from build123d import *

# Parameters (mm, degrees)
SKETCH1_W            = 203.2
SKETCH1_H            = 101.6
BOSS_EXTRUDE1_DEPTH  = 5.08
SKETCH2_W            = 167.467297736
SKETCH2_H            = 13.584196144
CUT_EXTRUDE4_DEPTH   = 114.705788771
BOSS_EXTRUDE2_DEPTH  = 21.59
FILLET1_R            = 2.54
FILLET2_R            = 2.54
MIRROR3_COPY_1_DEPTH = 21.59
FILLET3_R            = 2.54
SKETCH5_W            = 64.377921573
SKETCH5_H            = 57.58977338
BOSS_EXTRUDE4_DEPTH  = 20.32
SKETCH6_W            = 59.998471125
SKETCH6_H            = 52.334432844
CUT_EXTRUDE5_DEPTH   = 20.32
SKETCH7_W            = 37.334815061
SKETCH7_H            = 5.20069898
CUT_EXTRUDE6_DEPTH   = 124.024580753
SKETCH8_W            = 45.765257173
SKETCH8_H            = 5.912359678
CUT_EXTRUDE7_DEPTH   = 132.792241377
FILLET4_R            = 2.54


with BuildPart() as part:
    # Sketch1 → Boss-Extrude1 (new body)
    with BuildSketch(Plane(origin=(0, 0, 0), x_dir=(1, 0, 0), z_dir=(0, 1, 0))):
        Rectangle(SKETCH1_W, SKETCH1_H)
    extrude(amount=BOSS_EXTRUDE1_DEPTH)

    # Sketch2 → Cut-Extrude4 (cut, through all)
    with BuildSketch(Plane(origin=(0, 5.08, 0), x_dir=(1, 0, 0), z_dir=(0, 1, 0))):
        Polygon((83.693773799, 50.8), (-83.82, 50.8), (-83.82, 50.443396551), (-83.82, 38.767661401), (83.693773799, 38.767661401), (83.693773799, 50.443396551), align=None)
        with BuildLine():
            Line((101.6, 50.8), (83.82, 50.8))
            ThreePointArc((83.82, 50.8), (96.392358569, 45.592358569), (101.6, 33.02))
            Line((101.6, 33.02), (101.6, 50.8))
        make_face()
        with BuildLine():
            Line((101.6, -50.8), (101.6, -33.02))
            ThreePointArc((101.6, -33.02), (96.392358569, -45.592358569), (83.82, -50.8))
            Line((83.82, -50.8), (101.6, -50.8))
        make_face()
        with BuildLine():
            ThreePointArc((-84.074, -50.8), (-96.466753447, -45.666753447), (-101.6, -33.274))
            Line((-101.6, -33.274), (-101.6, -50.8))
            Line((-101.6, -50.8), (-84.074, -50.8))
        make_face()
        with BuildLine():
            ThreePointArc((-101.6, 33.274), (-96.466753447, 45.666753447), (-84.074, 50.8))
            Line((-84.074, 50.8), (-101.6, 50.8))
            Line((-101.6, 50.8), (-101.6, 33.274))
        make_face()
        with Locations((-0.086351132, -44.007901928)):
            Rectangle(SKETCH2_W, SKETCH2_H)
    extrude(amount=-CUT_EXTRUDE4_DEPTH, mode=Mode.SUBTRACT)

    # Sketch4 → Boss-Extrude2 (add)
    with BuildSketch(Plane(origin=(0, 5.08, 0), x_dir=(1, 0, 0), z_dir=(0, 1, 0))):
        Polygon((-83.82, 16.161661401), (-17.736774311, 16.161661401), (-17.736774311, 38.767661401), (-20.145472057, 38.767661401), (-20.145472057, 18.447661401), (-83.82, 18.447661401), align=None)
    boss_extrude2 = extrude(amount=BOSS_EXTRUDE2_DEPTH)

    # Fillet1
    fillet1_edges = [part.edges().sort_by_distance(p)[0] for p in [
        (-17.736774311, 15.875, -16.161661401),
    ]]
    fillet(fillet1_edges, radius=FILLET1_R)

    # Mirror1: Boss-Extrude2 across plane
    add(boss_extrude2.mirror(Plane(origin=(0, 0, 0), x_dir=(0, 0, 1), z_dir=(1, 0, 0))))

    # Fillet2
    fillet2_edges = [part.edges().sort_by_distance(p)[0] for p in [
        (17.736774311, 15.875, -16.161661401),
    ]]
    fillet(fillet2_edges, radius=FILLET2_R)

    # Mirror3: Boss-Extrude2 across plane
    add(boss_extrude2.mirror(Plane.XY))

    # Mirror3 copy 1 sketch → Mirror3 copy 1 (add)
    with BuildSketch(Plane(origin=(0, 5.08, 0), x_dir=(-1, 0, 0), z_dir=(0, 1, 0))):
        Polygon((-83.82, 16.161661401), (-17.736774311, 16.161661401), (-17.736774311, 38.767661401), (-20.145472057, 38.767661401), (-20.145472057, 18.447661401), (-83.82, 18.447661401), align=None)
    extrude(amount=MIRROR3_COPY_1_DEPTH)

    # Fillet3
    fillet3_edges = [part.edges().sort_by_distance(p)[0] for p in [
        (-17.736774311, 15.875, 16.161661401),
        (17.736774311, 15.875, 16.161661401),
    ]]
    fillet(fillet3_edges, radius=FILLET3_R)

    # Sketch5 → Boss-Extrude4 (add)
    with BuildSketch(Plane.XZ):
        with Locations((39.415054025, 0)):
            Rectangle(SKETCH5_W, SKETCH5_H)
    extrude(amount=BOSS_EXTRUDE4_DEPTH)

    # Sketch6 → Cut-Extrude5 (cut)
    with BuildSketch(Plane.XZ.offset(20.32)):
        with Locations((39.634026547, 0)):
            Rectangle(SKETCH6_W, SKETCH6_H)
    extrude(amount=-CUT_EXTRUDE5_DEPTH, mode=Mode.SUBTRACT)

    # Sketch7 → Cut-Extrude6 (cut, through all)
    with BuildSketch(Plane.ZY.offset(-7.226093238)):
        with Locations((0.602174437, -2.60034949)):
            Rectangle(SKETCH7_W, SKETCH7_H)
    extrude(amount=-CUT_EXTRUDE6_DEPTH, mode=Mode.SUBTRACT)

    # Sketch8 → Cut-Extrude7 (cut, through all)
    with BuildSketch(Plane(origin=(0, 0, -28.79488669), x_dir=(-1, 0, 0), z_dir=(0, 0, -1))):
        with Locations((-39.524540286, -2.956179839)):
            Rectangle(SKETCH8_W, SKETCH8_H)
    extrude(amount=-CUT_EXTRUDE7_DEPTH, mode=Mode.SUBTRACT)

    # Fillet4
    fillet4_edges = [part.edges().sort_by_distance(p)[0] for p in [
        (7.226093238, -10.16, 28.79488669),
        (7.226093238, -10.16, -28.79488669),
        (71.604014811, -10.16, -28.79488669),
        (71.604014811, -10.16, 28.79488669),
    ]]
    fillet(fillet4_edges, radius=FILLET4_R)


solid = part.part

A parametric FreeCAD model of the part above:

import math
import FreeCAD as App
import Part
import Sketcher
Q = App.Units.Quantity


def edges_at(feature, points):
    """Names of the edges that pass closest to the given points."""
    edges = feature.Shape.Edges
    near = lambda p: min(range(len(edges)), key=lambda i: edges[i].distToShape(Part.Vertex(*p))[0])
    return sorted({f"Edge{near(p) + 1}" for p in points})

doc = App.newDocument("Part")
body = doc.addObject("PartDesign::Body", "Body")

sketch1 = body.newObject("Sketcher::SketchObject", "Sketch")
sketch1.AttachmentSupport = (doc.getObject("XZ_Plane"), [""])
sketch1.MapMode = "FlatFace"
sketch1.addGeometry(Part.LineSegment(App.Vector(-102, -51, 0), App.Vector(-102, 51, 0)), False)
sketch1.addGeometry(Part.LineSegment(App.Vector(-102, 51, 0), App.Vector(102, 51, 0)), False)
sketch1.addGeometry(Part.LineSegment(App.Vector(102, 51, 0), App.Vector(102, -51, 0)), False)
sketch1.addGeometry(Part.LineSegment(App.Vector(102, -51, 0), App.Vector(-102, -51, 0)), False)
sketch1.addConstraint(Sketcher.Constraint("Coincident", 0, 2, 1, 1))
sketch1.addConstraint(Sketcher.Constraint("Coincident", 1, 2, 2, 1))
sketch1.addConstraint(Sketcher.Constraint("Coincident", 2, 2, 3, 1))
sketch1.addConstraint(Sketcher.Constraint("Coincident", 3, 2, 0, 1))
sketch1.addConstraint(Sketcher.Constraint("Vertical", 0))
sketch1.addConstraint(Sketcher.Constraint("Horizontal", 1))
sketch1.addConstraint(Sketcher.Constraint("Vertical", 2))
sketch1.addConstraint(Sketcher.Constraint("Horizontal", 3))
sketch1.addConstraint(Sketcher.Constraint("Symmetric", 0, 2, 2, 2, -1, 1))
sketch1.addConstraint(Sketcher.Constraint("DistanceX", 1, 1, 1, 2, Q("8 in")))
sketch1.addConstraint(Sketcher.Constraint("DistanceY", 0, 1, 0, 2, Q("4 in")))
pad1 = body.newObject("PartDesign::Pad", "Pad")
pad1.Profile = sketch1
pad1.Length = Q("0.2 in")
pad1.Reversed = True

sketch2 = body.newObject("Sketcher::SketchObject", "Sketch001")
sketch2.AttachmentSupport = (doc.getObject("XZ_Plane"), [""])
sketch2.MapMode = "FlatFace"
sketch2.AttachmentOffset = App.Placement(App.Vector(0, 0, -0.2 * 25.4), App.Rotation())
sketch2.addGeometry(Part.LineSegment(App.Vector(84, -51, 0), App.Vector(-84, -51, 0)), False)
sketch2.addGeometry(Part.LineSegment(App.Vector(-84, -51, 0), App.Vector(-84, -39, 0)), False)
sketch2.addGeometry(Part.LineSegment(App.Vector(-84, -39, 0), App.Vector(84, -39, 0)), False)
sketch2.addGeometry(Part.LineSegment(App.Vector(84, -39, 0), App.Vector(84, -51, 0)), False)
sketch2.addGeometry(Part.LineSegment(App.Vector(102, -51, 0), App.Vector(84, -51, 0)), False)
sketch2.addGeometry(Part.ArcOfCircle(Part.Circle(App.Vector(84, -33, 0), App.Vector(0, 0, 1), 18), math.radians(-90), math.radians(0)), False)
sketch2.addGeometry(Part.LineSegment(App.Vector(102, -33, 0), App.Vector(102, -51, 0)), False)
sketch2.addGeometry(Part.LineSegment(App.Vector(102, 51, 0), App.Vector(102, 33, 0)), False)
sketch2.addGeometry(Part.ArcOfCircle(Part.Circle(App.Vector(84, 33, 0), App.Vector(0, 0, 1), 18), math.radians(0), math.radians(90)), False)
sketch2.addGeometry(Part.LineSegment(App.Vector(84, 51, 0), App.Vector(102, 51, 0)), False)
sketch2.addGeometry(Part.ArcOfCircle(Part.Circle(App.Vector(-84, 33, 0), App.Vector(0, 0, 1), 18), math.radians(90), math.radians(180)), False)
sketch2.addGeometry(Part.LineSegment(App.Vector(-102, 33, 0), App.Vector(-102, 51, 0)), False)
sketch2.addGeometry(Part.LineSegment(App.Vector(-102, 51, 0), App.Vector(-84, 51, 0)), False)
sketch2.addGeometry(Part.ArcOfCircle(Part.Circle(App.Vector(-84, -33, 0), App.Vector(0, 0, 1), 18), math.radians(180), math.radians(270)), False)
sketch2.addGeometry(Part.LineSegment(App.Vector(-84, -51, 0), App.Vector(-102, -51, 0)), False)
sketch2.addGeometry(Part.LineSegment(App.Vector(-102, -51, 0), App.Vector(-102, -33, 0)), False)
sketch2.addGeometry(Part.LineSegment(App.Vector(-84, 37, 0), App.Vector(-84, 51, 0)), False)
sketch2.addGeometry(Part.LineSegment(App.Vector(-84, 51, 0), App.Vector(84, 51, 0)), False)
sketch2.addGeometry(Part.LineSegment(App.Vector(84, 51, 0), App.Vector(84, 37, 0)), False)
sketch2.addGeometry(Part.LineSegment(App.Vector(84, 37, 0), App.Vector(-84, 37, 0)), False)
sketch2.addConstraint(Sketcher.Constraint("Coincident", 0, 2, 1, 1))
sketch2.addConstraint(Sketcher.Constraint("Coincident", 1, 2, 2, 1))
sketch2.addConstraint(Sketcher.Constraint("Coincident", 2, 2, 3, 1))
sketch2.addConstraint(Sketcher.Constraint("Coincident", 3, 2, 0, 1))
sketch2.addConstraint(Sketcher.Constraint("Tangent", 4, 2, 5, 1))
sketch2.addConstraint(Sketcher.Constraint("Tangent", 5, 2, 6, 1))
sketch2.addConstraint(Sketcher.Constraint("Coincident", 6, 2, 4, 1))
sketch2.addConstraint(Sketcher.Constraint("Tangent", 7, 2, 8, 1))
sketch2.addConstraint(Sketcher.Constraint("Tangent", 8, 2, 9, 1))
sketch2.addConstraint(Sketcher.Constraint("Coincident", 9, 2, 7, 1))
sketch2.addConstraint(Sketcher.Constraint("Tangent", 10, 2, 11, 1))
sketch2.addConstraint(Sketcher.Constraint("Coincident", 11, 2, 12, 1))
sketch2.addConstraint(Sketcher.Constraint("Tangent", 12, 2, 10, 1))
sketch2.addConstraint(Sketcher.Constraint("Tangent", 13, 2, 14, 1))
sketch2.addConstraint(Sketcher.Constraint("Coincident", 14, 2, 15, 1))
sketch2.addConstraint(Sketcher.Constraint("Tangent", 15, 2, 13, 1))
sketch2.addConstraint(Sketcher.Constraint("Coincident", 16, 2, 17, 1))
sketch2.addConstraint(Sketcher.Constraint("Coincident", 17, 2, 18, 1))
sketch2.addConstraint(Sketcher.Constraint("Coincident", 18, 2, 19, 1))
sketch2.addConstraint(Sketcher.Constraint("Coincident", 19, 2, 16, 1))
sketch2.addConstraint(Sketcher.Constraint("Horizontal", 0))
sketch2.addConstraint(Sketcher.Constraint("Vertical", 1))
sketch2.addConstraint(Sketcher.Constraint("Horizontal", 2))
sketch2.addConstraint(Sketcher.Constraint("Vertical", 3))
sketch2.addConstraint(Sketcher.Constraint("Horizontal", 4))
sketch2.addConstraint(Sketcher.Constraint("Vertical", 6))
sketch2.addConstraint(Sketcher.Constraint("Vertical", 7))
sketch2.addConstraint(Sketcher.Constraint("Horizontal", 9))
sketch2.addConstraint(Sketcher.Constraint("Vertical", 11))
sketch2.addConstraint(Sketcher.Constraint("Horizontal", 12))
sketch2.addConstraint(Sketcher.Constraint("Horizontal", 14))
sketch2.addConstraint(Sketcher.Constraint("Vertical", 15))
sketch2.addConstraint(Sketcher.Constraint("Vertical", 16))
sketch2.addConstraint(Sketcher.Constraint("Horizontal", 17))
sketch2.addConstraint(Sketcher.Constraint("Vertical", 18))
sketch2.addConstraint(Sketcher.Constraint("Horizontal", 19))
sketch2.addConstraint(Sketcher.Constraint("Equal", 5, 8))
sketch2.addConstraint(Sketcher.Constraint("Equal", 10, 13))
sketch2.addConstraint(Sketcher.Constraint("Symmetric", 0, 2, 8, 2, -1, 1))
sketch2.addConstraint(Sketcher.Constraint("Symmetric", 6, 2, 11, 2, -1, 1))
sketch2.addConstraint(Sketcher.Constraint("Symmetric", 9, 2, 14, 2, -1, 1))
sketch2.addConstraint(Sketcher.Constraint("Symmetric", 4, 2, 16, 2, -1, 1))
sketch2.addConstraint(Sketcher.Constraint("Symmetric", 0, 2, 4, 2, -2))
sketch2.addConstraint(Sketcher.Constraint("Radius", 5, Q("0.7 in")))
sketch2.addConstraint(Sketcher.Constraint("Radius", 10, Q("0.69 in")))
sketch2.addConstraint(Sketcher.Constraint("DistanceY", 0, 2, -1, 1, Q("2 in")))
sketch2.addConstraint(Sketcher.Constraint("DistanceX", -1, 1, 5, 2, Q("4 in")))
sketch2.addConstraint(Sketcher.Constraint("DistanceY", 1, 1, 1, 2, 12.032339))
sketch2.addConstraint(Sketcher.Constraint("DistanceX", 0, 2, 0, 1, 167.513774))
sketch2.addConstraint(Sketcher.Constraint("DistanceX", 17, 1, 17, 2, 167.467298))
sketch2.addConstraint(Sketcher.Constraint("DistanceY", 16, 1, 16, 2, 13.584196))
pocket1 = body.newObject("PartDesign::Pocket", "Pocket")
pocket1.Profile = sketch2
pocket1.Type = "ThroughAll"
pocket1.Reversed = True

sketch3 = body.newObject("Sketcher::SketchObject", "Sketch002")
sketch3.AttachmentSupport = (doc.getObject("XZ_Plane"), [""])
sketch3.MapMode = "FlatFace"
sketch3.AttachmentOffset = App.Placement(App.Vector(0, 0, -0.2 * 25.4), App.Rotation())
sketch3.addGeometry(Part.LineSegment(App.Vector(-83.8, -16.2, 0), App.Vector(-17.7, -16.2, 0)), False)
sketch3.addGeometry(Part.LineSegment(App.Vector(-17.7, -16.2, 0), App.Vector(-17.7, -38.8, 0)), False)
sketch3.addGeometry(Part.LineSegment(App.Vector(-17.7, -38.8, 0), App.Vector(-20.1, -38.8, 0)), False)
sketch3.addGeometry(Part.LineSegment(App.Vector(-20.1, -38.8, 0), App.Vector(-20.1, -18.4, 0)), False)
sketch3.addGeometry(Part.LineSegment(App.Vector(-20.1, -18.4, 0), App.Vector(-83.8, -18.4, 0)), False)
sketch3.addGeometry(Part.LineSegment(App.Vector(-83.8, -18.4, 0), App.Vector(-83.8, -16.2, 0)), False)
sketch3.addConstraint(Sketcher.Constraint("Coincident", 0, 2, 1, 1))
sketch3.addConstraint(Sketcher.Constraint("Coincident", 1, 2, 2, 1))
sketch3.addConstraint(Sketcher.Constraint("Coincident", 2, 2, 3, 1))
sketch3.addConstraint(Sketcher.Constraint("Coincident", 3, 2, 4, 1))
sketch3.addConstraint(Sketcher.Constraint("Coincident", 4, 2, 5, 1))
sketch3.addConstraint(Sketcher.Constraint("Coincident", 5, 2, 0, 1))
sketch3.addConstraint(Sketcher.Constraint("Horizontal", 0))
sketch3.addConstraint(Sketcher.Constraint("Vertical", 1))
sketch3.addConstraint(Sketcher.Constraint("Horizontal", 2))
sketch3.addConstraint(Sketcher.Constraint("Vertical", 3))
sketch3.addConstraint(Sketcher.Constraint("Horizontal", 4))
sketch3.addConstraint(Sketcher.Constraint("Vertical", 5))
sketch3.addConstraint(Sketcher.Constraint("DistanceY", 3, 1, 3, 2, Q("0.8 in")))
sketch3.addConstraint(Sketcher.Constraint("DistanceY", 1, 2, 1, 1, Q("0.89 in")))
sketch3.addConstraint(Sketcher.Constraint("DistanceX", 4, 2, -1, 1, Q("3.3 in")))
sketch3.addConstraint(Sketcher.Constraint("DistanceX", 0, 1, 0, 2, 66.083226))
sketch3.addConstraint(Sketcher.Constraint("DistanceX", 2, 2, 2, 1, 2.408698))
sketch3.addConstraint(Sketcher.Constraint("DistanceY", 0, 2, -1, 1, 16.161661))
pad2 = body.newObject("PartDesign::Pad", "Pad001")
pad2.Profile = sketch3
pad2.Length = Q("0.85 in")
pad2.Reversed = True
doc.recompute()

fillet = body.newObject("PartDesign::Fillet", "Fillet")
fillet.Base = (pad2, edges_at(pad2, [(-17.737, 15.875, -16.162)]))
fillet.Radius = Q("0.1 in")
doc.recompute()

mirrored = body.newObject("PartDesign::Mirrored", "Mirrored")
mirrored.Originals = [pad2]
mirrored.MirrorPlane = (doc.getObject("YZ_Plane"), [""])
body.Tip = mirrored
doc.recompute()

fillet2 = body.newObject("PartDesign::Fillet", "Fillet001")
fillet2.Base = (mirrored, edges_at(mirrored, [(17.737, 15.875, -16.162)]))
fillet2.Radius = Q("0.1 in")
doc.recompute()

mirrored2 = body.newObject("PartDesign::Mirrored", "Mirrored001")
mirrored2.Originals = [pad2]
mirrored2.MirrorPlane = (doc.getObject("XY_Plane"), [""])
body.Tip = mirrored2

sketch4 = body.newObject("Sketcher::SketchObject", "Sketch003")
sketch4.AttachmentSupport = (doc.getObject("XZ_Plane"), [""])
sketch4.MapMode = "FlatFace"
sketch4.AttachmentOffset = App.Placement(App.Vector(0, 0, -0.2 * 25.4), App.Rotation())
sketch4.addGeometry(Part.LineSegment(App.Vector(83.8, 16.2, 0), App.Vector(17.7, 16.2, 0)), False)
sketch4.addGeometry(Part.LineSegment(App.Vector(17.7, 16.2, 0), App.Vector(17.7, 38.8, 0)), False)
sketch4.addGeometry(Part.LineSegment(App.Vector(17.7, 38.8, 0), App.Vector(20.1, 38.8, 0)), False)
sketch4.addGeometry(Part.LineSegment(App.Vector(20.1, 38.8, 0), App.Vector(20.1, 18.4, 0)), False)
sketch4.addGeometry(Part.LineSegment(App.Vector(20.1, 18.4, 0), App.Vector(83.8, 18.4, 0)), False)
sketch4.addGeometry(Part.LineSegment(App.Vector(83.8, 18.4, 0), App.Vector(83.8, 16.2, 0)), False)
sketch4.addConstraint(Sketcher.Constraint("Coincident", 0, 2, 1, 1))
sketch4.addConstraint(Sketcher.Constraint("Coincident", 1, 2, 2, 1))
sketch4.addConstraint(Sketcher.Constraint("Coincident", 2, 2, 3, 1))
sketch4.addConstraint(Sketcher.Constraint("Coincident", 3, 2, 4, 1))
sketch4.addConstraint(Sketcher.Constraint("Coincident", 4, 2, 5, 1))
sketch4.addConstraint(Sketcher.Constraint("Coincident", 5, 2, 0, 1))
sketch4.addConstraint(Sketcher.Constraint("Horizontal", 0))
sketch4.addConstraint(Sketcher.Constraint("Vertical", 1))
sketch4.addConstraint(Sketcher.Constraint("Horizontal", 2))
sketch4.addConstraint(Sketcher.Constraint("Vertical", 3))
sketch4.addConstraint(Sketcher.Constraint("Horizontal", 4))
sketch4.addConstraint(Sketcher.Constraint("Vertical", 5))
sketch4.addConstraint(Sketcher.Constraint("DistanceY", 3, 2, 3, 1, Q("0.8 in")))
sketch4.addConstraint(Sketcher.Constraint("DistanceY", 1, 1, 1, 2, Q("0.89 in")))
sketch4.addConstraint(Sketcher.Constraint("DistanceX", -1, 1, 4, 2, Q("3.3 in")))
sketch4.addConstraint(Sketcher.Constraint("DistanceX", 0, 2, 0, 1, 66.083226))
sketch4.addConstraint(Sketcher.Constraint("DistanceX", 2, 1, 2, 2, 2.408698))
sketch4.addConstraint(Sketcher.Constraint("DistanceY", -1, 1, 0, 2, 16.161661))
pad3 = body.newObject("PartDesign::Pad", "Pad002")
pad3.Profile = sketch4
pad3.Length = Q("0.85 in")
pad3.Reversed = True
doc.recompute()

fillet3 = body.newObject("PartDesign::Fillet", "Fillet002")
fillet3.Base = (pad3, edges_at(pad3, [(-17.737, 15.875, 16.162), (17.737, 15.875, 16.162)]))
fillet3.Radius = Q("0.1 in")

sketch5 = body.newObject("Sketcher::SketchObject", "Sketch004")
sketch5.AttachmentSupport = (doc.getObject("XZ_Plane"), [""])
sketch5.MapMode = "FlatFace"
sketch5.addGeometry(Part.LineSegment(App.Vector(7, 29, 0), App.Vector(7, -29, 0)), False)
sketch5.addGeometry(Part.LineSegment(App.Vector(7, -29, 0), App.Vector(72, -29, 0)), False)
sketch5.addGeometry(Part.LineSegment(App.Vector(72, -29, 0), App.Vector(72, 29, 0)), False)
sketch5.addGeometry(Part.LineSegment(App.Vector(72, 29, 0), App.Vector(7, 29, 0)), False)
sketch5.addConstraint(Sketcher.Constraint("Coincident", 0, 2, 1, 1))
sketch5.addConstraint(Sketcher.Constraint("Coincident", 1, 2, 2, 1))
sketch5.addConstraint(Sketcher.Constraint("Coincident", 2, 2, 3, 1))
sketch5.addConstraint(Sketcher.Constraint("Coincident", 3, 2, 0, 1))
sketch5.addConstraint(Sketcher.Constraint("Vertical", 0))
sketch5.addConstraint(Sketcher.Constraint("Horizontal", 1))
sketch5.addConstraint(Sketcher.Constraint("Vertical", 2))
sketch5.addConstraint(Sketcher.Constraint("Horizontal", 3))
sketch5.addConstraint(Sketcher.Constraint("DistanceX", 1, 1, 1, 2, 64.377922))
sketch5.addConstraint(Sketcher.Constraint("DistanceY", 0, 2, 0, 1, 57.589773))
sketch5.addConstraint(Sketcher.Constraint("DistanceX", -1, 1, 0, 2, 7.226093))
sketch5.addConstraint(Sketcher.Constraint("DistanceY", 0, 2, -1, 1, 28.794887))
pad4 = body.newObject("PartDesign::Pad", "Pad003")
pad4.Profile = sketch5
pad4.Length = Q("0.8 in")

sketch6 = body.newObject("Sketcher::SketchObject", "Sketch005")
sketch6.AttachmentSupport = (doc.getObject("XZ_Plane"), [""])
sketch6.MapMode = "FlatFace"
sketch6.AttachmentOffset = App.Placement(App.Vector(0, 0, 0.8 * 25.4), App.Rotation())
sketch6.addGeometry(Part.LineSegment(App.Vector(10, 26, 0), App.Vector(10, -26, 0)), False)
sketch6.addGeometry(Part.LineSegment(App.Vector(10, -26, 0), App.Vector(70, -26, 0)), False)
sketch6.addGeometry(Part.LineSegment(App.Vector(70, -26, 0), App.Vector(70, 26, 0)), False)
sketch6.addGeometry(Part.LineSegment(App.Vector(70, 26, 0), App.Vector(10, 26, 0)), False)
sketch6.addConstraint(Sketcher.Constraint("Coincident", 0, 2, 1, 1))
sketch6.addConstraint(Sketcher.Constraint("Coincident", 1, 2, 2, 1))
sketch6.addConstraint(Sketcher.Constraint("Coincident", 2, 2, 3, 1))
sketch6.addConstraint(Sketcher.Constraint("Coincident", 3, 2, 0, 1))
sketch6.addConstraint(Sketcher.Constraint("Vertical", 0))
sketch6.addConstraint(Sketcher.Constraint("Horizontal", 1))
sketch6.addConstraint(Sketcher.Constraint("Vertical", 2))
sketch6.addConstraint(Sketcher.Constraint("Horizontal", 3))
sketch6.addConstraint(Sketcher.Constraint("DistanceX", 1, 1, 1, 2, 59.998471))
sketch6.addConstraint(Sketcher.Constraint("DistanceY", 0, 2, 0, 1, 52.334433))
sketch6.addConstraint(Sketcher.Constraint("DistanceX", -1, 1, 0, 2, 9.634791))
sketch6.addConstraint(Sketcher.Constraint("DistanceY", 0, 2, -1, 1, 26.167216))
pocket2 = body.newObject("PartDesign::Pocket", "Pocket001")
pocket2.Profile = sketch6
pocket2.Length = Q("0.8 in")

sketch7 = body.newObject("Sketcher::SketchObject", "Sketch006")
sketch7.AttachmentSupport = (doc.getObject("YZ_Plane"), [""])
sketch7.MapMode = "FlatFace"
sketch7.AttachmentOffset = App.Placement(App.Vector(0, 0, 7.226093), App.Rotation())
sketch7.addGeometry(Part.LineSegment(App.Vector(0, -18, 0), App.Vector(-5, -18, 0)), False)
sketch7.addGeometry(Part.LineSegment(App.Vector(-5, -18, 0), App.Vector(-5, 19, 0)), False)
sketch7.addGeometry(Part.LineSegment(App.Vector(-5, 19, 0), App.Vector(0, 19, 0)), False)
sketch7.addGeometry(Part.LineSegment(App.Vector(0, 19, 0), App.Vector(0, -18, 0)), False)
sketch7.addConstraint(Sketcher.Constraint("Coincident", 0, 2, 1, 1))
sketch7.addConstraint(Sketcher.Constraint("Coincident", 1, 2, 2, 1))
sketch7.addConstraint(Sketcher.Constraint("Coincident", 2, 2, 3, 1))
sketch7.addConstraint(Sketcher.Constraint("Coincident", 3, 2, 0, 1))
sketch7.addConstraint(Sketcher.Constraint("Horizontal", 0))
sketch7.addConstraint(Sketcher.Constraint("Vertical", 1))
sketch7.addConstraint(Sketcher.Constraint("Horizontal", 2))
sketch7.addConstraint(Sketcher.Constraint("Vertical", 3))
sketch7.addConstraint(Sketcher.Constraint("PointOnObject", 2, 2, -2))
sketch7.addConstraint(Sketcher.Constraint("DistanceX", 0, 2, 0, 1, 5.200699))
sketch7.addConstraint(Sketcher.Constraint("DistanceY", 1, 1, 1, 2, 37.334815))
sketch7.addConstraint(Sketcher.Constraint("DistanceY", -1, 1, 1, 2, 19.269582))
pocket3 = body.newObject("PartDesign::Pocket", "Pocket002")
pocket3.Profile = sketch7
pocket3.Type = "ThroughAll"
pocket3.Reversed = True

sketch8 = body.newObject("Sketcher::SketchObject", "Sketch007")
sketch8.AttachmentSupport = (doc.getObject("XY_Plane"), [""])
sketch8.MapMode = "FlatFace"
sketch8.AttachmentOffset = App.Placement(App.Vector(0, 0, -28.794887), App.Rotation())
sketch8.addGeometry(Part.LineSegment(App.Vector(62, 0, 0), App.Vector(62, -6, 0)), False)
sketch8.addGeometry(Part.LineSegment(App.Vector(62, -6, 0), App.Vector(17, -6, 0)), False)
sketch8.addGeometry(Part.LineSegment(App.Vector(17, -6, 0), App.Vector(17, 0, 0)), False)
sketch8.addGeometry(Part.LineSegment(App.Vector(17, 0, 0), App.Vector(62, 0, 0)), False)
sketch8.addConstraint(Sketcher.Constraint("Coincident", 0, 2, 1, 1))
sketch8.addConstraint(Sketcher.Constraint("Coincident", 1, 2, 2, 1))
sketch8.addConstraint(Sketcher.Constraint("Coincident", 2, 2, 3, 1))
sketch8.addConstraint(Sketcher.Constraint("Coincident", 3, 2, 0, 1))
sketch8.addConstraint(Sketcher.Constraint("Vertical", 0))
sketch8.addConstraint(Sketcher.Constraint("Horizontal", 1))
sketch8.addConstraint(Sketcher.Constraint("Vertical", 2))
sketch8.addConstraint(Sketcher.Constraint("Horizontal", 3))
sketch8.addConstraint(Sketcher.Constraint("PointOnObject", 2, 2, -1))
sketch8.addConstraint(Sketcher.Constraint("DistanceY", 0, 2, 0, 1, 5.91236))
sketch8.addConstraint(Sketcher.Constraint("DistanceX", 1, 2, 1, 1, 45.765257))
sketch8.addConstraint(Sketcher.Constraint("DistanceX", -1, 1, 0, 2, 62.407169))
pocket4 = body.newObject("PartDesign::Pocket", "Pocket003")
pocket4.Profile = sketch8
pocket4.Type = "ThroughAll"
pocket4.Reversed = True
doc.recompute()

fillet4 = body.newObject("PartDesign::Fillet", "Fillet003")
fillet4.Base = (pocket4, edges_at(pocket4, [
    (7.226, -10.16, 28.795),
    (7.226, -10.16, -28.795),
    (71.604, -10.16, -28.795),
    (71.604, -10.16, 28.795),
]))
fillet4.Radius = Q("0.1 in")

doc.recompute()
